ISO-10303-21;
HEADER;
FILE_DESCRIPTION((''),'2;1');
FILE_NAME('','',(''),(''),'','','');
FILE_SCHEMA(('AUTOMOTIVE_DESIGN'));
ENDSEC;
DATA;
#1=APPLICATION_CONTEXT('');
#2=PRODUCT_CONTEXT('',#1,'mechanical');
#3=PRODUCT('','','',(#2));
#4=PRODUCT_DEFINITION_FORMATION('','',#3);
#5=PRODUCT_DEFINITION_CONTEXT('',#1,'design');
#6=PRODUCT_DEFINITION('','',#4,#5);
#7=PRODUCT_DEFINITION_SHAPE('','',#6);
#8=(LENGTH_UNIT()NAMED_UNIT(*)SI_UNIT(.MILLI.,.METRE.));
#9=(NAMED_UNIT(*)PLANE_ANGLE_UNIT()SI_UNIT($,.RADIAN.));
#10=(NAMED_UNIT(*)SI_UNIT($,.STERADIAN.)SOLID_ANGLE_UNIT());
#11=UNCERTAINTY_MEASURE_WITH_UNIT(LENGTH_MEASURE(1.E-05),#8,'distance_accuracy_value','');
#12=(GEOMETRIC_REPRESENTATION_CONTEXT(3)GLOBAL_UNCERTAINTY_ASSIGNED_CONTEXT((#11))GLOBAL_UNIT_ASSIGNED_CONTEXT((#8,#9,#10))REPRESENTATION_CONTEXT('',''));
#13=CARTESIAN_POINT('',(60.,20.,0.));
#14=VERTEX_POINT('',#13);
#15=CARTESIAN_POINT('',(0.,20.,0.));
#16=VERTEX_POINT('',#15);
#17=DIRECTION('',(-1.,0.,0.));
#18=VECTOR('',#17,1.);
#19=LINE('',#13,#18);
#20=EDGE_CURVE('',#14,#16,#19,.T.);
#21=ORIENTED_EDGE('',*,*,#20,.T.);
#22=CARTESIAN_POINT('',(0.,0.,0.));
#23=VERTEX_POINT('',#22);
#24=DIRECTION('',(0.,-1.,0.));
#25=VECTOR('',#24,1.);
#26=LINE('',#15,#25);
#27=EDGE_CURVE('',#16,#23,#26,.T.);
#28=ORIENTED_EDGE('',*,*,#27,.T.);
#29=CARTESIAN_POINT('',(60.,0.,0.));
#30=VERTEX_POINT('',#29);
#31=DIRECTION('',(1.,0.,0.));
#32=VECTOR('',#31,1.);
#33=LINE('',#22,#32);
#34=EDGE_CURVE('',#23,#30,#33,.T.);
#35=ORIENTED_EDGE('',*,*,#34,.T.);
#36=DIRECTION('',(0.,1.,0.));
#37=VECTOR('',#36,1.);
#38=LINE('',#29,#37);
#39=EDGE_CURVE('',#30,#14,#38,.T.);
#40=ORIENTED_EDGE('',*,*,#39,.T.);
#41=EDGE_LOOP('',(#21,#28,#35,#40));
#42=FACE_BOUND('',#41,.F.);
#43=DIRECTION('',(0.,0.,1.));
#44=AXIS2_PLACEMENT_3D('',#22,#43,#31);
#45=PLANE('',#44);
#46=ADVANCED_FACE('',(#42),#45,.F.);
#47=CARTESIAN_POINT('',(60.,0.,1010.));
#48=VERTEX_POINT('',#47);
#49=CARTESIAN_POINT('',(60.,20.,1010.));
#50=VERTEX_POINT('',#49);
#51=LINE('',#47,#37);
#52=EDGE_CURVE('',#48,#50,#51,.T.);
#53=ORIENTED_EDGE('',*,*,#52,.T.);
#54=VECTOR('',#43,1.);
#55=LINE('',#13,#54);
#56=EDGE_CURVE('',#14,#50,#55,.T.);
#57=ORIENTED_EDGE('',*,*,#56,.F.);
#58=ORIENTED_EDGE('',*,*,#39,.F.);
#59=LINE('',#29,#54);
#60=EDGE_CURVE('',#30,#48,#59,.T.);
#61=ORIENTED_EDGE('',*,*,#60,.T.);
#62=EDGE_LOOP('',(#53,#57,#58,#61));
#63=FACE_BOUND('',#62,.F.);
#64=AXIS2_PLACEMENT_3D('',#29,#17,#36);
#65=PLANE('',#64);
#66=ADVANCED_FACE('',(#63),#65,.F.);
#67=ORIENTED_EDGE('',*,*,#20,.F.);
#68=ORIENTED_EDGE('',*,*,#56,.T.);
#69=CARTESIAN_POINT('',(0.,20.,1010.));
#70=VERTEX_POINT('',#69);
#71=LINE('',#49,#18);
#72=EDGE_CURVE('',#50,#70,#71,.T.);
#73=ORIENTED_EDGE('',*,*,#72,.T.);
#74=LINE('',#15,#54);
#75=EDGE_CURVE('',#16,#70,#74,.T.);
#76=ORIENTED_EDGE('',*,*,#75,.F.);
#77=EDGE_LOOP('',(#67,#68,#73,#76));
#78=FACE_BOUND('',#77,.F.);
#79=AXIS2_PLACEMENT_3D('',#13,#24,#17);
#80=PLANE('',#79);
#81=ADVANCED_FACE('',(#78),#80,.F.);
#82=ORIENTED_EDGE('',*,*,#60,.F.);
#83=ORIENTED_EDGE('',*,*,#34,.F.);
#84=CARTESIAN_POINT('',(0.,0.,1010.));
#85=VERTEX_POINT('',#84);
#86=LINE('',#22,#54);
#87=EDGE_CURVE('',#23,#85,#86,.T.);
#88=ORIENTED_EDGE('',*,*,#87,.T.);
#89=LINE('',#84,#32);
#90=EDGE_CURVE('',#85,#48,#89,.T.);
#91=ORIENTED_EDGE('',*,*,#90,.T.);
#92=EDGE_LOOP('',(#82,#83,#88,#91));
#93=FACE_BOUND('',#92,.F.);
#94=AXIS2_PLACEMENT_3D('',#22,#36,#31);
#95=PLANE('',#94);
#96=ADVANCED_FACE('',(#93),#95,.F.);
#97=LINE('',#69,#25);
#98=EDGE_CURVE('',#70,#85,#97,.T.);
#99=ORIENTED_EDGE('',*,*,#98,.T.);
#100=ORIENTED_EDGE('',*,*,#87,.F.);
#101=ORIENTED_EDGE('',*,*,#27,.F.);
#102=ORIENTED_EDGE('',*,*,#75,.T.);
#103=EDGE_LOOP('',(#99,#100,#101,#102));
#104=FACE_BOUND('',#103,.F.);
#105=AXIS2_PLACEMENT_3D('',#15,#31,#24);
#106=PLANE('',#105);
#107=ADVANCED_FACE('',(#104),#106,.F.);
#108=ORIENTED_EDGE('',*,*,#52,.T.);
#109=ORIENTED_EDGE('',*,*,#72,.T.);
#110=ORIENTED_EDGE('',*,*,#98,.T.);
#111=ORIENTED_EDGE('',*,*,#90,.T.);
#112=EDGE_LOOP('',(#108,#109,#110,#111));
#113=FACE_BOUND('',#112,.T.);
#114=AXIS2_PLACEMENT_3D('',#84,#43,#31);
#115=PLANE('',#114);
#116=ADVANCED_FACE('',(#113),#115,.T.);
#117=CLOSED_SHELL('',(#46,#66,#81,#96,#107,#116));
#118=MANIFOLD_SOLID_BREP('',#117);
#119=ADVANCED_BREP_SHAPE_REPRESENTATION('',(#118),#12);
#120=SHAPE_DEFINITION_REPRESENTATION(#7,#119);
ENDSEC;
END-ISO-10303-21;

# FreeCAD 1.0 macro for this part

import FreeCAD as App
import Part
import Sketcher
from FreeCAD import Vector
Q = App.Units.Quantity

doc = App.newDocument("Part")
body = doc.addObject("PartDesign::Body", "Body")

# Sketch on XY plane
sketch1 = body.newObject("Sketcher::SketchObject", "Sketch")
sketch1.AttachmentSupport = (doc.getObject("XY_Plane"), [""])
sketch1.MapMode = "FlatFace"
sketch1.addGeometry([
    Part.LineSegment(Vector(0, 20, 0), Vector(0, 0, 0)),
    Part.LineSegment(Vector(0, 0, 0), Vector(60, 0, 0)),
    Part.LineSegment(Vector(60, 0, 0), Vector(60, 20, 0)),
    Part.LineSegment(Vector(60, 20, 0), Vector(0, 20, 0)),
], False)
sketch1.addConstraint([
    Sketcher.Constraint("Coincident", 0, 2, 1, 1),
    Sketcher.Constraint("Coincident", 1, 2, 2, 1),
    Sketcher.Constraint("Coincident", 2, 2, 3, 1),
    Sketcher.Constraint("Coincident", 3, 2, 0, 1),
    Sketcher.Constraint("Vertical", 0),
    Sketcher.Constraint("Horizontal", 1),
    Sketcher.Constraint("Vertical", 2),
    Sketcher.Constraint("Horizontal", 3),
    Sketcher.Constraint("Coincident", 0, 2, -1, 1),
    Sketcher.Constraint("DistanceX", 1, 1, 1, 2, Q("60 mm")),
    Sketcher.Constraint("DistanceY", 0, 2, 0, 1, Q("20 mm")),
])
pad1 = body.newObject("PartDesign::Pad", "Pad")
pad1.Profile = sketch1
pad1.Length = 1010

doc.recompute()
